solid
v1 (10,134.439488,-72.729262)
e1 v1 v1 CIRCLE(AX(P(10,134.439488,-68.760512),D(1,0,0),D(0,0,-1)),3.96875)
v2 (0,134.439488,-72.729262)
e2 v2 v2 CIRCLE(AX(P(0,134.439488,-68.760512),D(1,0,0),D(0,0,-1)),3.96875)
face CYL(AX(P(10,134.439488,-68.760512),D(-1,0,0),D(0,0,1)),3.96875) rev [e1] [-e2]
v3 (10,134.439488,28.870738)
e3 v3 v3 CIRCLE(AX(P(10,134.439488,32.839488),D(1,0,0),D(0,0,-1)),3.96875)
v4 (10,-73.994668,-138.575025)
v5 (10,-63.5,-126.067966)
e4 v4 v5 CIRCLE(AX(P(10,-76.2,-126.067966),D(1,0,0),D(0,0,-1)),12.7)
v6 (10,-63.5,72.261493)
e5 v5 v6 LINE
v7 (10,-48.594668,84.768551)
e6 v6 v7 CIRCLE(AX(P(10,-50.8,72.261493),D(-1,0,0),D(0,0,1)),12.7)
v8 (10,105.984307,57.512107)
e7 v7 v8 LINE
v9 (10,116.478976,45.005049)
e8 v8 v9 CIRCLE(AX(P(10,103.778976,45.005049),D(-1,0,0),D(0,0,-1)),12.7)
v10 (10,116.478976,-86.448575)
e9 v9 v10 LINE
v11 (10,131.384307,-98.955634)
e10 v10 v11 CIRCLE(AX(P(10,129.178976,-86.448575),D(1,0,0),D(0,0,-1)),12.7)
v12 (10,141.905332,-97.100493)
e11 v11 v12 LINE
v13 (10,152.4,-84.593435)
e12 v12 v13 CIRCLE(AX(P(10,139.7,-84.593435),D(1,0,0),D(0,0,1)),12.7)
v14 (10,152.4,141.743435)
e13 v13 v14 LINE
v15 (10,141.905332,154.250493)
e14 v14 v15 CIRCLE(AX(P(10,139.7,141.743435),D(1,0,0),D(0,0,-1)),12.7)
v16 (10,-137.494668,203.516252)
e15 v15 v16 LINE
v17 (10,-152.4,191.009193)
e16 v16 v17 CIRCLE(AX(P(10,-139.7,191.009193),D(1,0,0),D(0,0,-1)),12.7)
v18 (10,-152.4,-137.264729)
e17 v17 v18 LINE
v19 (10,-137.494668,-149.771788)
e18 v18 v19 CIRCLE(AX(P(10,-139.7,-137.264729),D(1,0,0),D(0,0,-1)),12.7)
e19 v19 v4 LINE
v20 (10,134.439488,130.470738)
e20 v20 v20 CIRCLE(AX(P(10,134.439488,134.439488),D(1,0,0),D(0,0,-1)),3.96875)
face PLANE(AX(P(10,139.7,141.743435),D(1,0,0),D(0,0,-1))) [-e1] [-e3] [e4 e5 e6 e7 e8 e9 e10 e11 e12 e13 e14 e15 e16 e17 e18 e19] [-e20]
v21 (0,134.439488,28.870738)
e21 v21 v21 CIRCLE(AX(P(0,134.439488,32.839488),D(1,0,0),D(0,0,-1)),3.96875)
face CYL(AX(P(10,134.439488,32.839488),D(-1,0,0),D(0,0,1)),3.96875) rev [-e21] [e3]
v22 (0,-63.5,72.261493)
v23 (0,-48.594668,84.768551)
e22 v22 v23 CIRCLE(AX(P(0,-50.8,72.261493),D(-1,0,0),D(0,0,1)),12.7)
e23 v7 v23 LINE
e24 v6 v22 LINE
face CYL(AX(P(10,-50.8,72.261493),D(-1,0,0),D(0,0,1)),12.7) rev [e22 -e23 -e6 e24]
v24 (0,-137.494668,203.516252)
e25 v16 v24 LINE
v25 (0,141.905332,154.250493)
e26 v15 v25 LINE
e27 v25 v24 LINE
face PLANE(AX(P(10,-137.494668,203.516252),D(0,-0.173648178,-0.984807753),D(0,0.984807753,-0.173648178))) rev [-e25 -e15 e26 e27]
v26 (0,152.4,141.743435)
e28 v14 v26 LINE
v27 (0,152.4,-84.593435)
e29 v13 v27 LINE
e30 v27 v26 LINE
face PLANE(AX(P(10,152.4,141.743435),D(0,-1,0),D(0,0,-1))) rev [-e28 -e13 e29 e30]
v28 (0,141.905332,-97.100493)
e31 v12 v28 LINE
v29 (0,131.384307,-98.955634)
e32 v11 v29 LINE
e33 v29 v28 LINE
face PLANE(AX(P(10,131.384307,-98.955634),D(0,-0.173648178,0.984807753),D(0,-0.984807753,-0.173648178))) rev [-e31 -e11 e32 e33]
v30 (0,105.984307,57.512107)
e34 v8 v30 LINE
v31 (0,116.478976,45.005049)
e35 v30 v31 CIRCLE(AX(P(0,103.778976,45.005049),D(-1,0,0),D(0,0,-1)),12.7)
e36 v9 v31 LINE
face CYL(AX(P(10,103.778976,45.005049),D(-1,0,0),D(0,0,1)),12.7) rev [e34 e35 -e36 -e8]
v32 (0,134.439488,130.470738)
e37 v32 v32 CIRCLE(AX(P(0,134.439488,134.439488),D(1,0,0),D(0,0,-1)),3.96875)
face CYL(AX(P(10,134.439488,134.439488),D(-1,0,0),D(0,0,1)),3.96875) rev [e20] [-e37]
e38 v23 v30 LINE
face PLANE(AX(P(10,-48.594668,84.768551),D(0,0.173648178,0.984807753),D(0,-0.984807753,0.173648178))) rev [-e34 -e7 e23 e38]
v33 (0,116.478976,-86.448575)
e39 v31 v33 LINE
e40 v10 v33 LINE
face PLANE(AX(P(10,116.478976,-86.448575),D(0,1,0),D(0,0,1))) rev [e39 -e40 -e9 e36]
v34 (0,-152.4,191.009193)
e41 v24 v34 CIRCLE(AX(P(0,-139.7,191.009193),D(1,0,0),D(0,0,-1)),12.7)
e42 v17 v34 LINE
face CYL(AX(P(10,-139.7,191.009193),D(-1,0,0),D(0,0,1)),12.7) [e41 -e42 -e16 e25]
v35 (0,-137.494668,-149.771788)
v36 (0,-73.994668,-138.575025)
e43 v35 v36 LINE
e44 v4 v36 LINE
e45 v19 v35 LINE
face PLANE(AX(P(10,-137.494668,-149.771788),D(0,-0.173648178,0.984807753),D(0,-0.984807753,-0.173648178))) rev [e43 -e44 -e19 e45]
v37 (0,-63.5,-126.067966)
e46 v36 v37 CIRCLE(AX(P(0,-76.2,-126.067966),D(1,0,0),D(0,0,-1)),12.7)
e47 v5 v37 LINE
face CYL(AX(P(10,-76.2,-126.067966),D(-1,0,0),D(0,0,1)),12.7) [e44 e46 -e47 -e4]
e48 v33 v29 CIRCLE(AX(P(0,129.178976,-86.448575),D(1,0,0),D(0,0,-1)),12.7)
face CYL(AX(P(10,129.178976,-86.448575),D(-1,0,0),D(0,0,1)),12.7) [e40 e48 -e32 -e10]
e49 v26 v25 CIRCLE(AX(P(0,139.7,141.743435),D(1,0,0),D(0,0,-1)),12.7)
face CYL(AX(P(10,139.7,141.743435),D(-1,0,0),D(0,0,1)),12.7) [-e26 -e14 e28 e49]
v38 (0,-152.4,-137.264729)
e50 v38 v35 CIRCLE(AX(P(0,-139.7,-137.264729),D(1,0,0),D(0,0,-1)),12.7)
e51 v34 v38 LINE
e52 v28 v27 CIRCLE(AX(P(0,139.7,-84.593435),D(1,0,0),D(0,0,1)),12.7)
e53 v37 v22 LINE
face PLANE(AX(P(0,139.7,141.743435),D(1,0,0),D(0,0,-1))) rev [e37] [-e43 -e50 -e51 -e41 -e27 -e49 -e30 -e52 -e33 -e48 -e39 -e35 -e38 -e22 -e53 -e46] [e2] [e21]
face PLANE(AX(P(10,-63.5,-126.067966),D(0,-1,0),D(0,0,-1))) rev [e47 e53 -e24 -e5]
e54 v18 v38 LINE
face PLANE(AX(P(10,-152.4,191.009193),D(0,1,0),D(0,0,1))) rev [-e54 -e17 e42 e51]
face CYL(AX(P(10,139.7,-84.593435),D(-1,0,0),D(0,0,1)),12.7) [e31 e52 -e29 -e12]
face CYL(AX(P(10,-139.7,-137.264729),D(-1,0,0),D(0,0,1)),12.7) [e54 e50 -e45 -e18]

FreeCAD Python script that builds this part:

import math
import FreeCAD as App
import Part
import Sketcher
Q = App.Units.Quantity

doc = App.newDocument("Part")
body = doc.addObject("PartDesign::Body", "Body")

sketch1 = doc.addObject("Sketcher::SketchObject", "Sketch")
body.addObject(sketch1)
sketch1.AttachmentSupport = (doc.YZ_Plane, [""])
sketch1.MapMode = "FlatFace"
sketch1.addGeometry(Part.LineSegment(App.Vector(131.384307, -98.955634, 0), App.Vector(141.905332, -97.100493, 0)), False)
sketch1.addGeometry(Part.ArcOfCircle(Part.Circle(App.Vector(139.7, -84.593435, 0), App.Vector(0, 0, 1), 12.7), math.radians(-80), math.radians(0)), False)
sketch1.addGeometry(Part.LineSegment(App.Vector(152.4, -84.593435, 0), App.Vector(152.4, 141.743435, 0)), False)
sketch1.addGeometry(Part.ArcOfCircle(Part.Circle(App.Vector(139.7, 141.743435, 0), App.Vector(0, 0, 1), 12.7), math.radians(0), math.radians(80)), False)
sketch1.addGeometry(Part.LineSegment(App.Vector(141.905332, 154.250493, 0), App.Vector(-137.494668, 203.516252, 0)), False)
sketch1.addGeometry(Part.ArcOfCircle(Part.Circle(App.Vector(-139.7, 191.009193, 0), App.Vector(0, 0, 1), 12.7), math.radians(80), math.radians(180)), False)
sketch1.addGeometry(Part.LineSegment(App.Vector(-152.4, 191.009193, 0), App.Vector(-152.4, -137.264729, 0)), False)
sketch1.addGeometry(Part.ArcOfCircle(Part.Circle(App.Vector(-139.7, -137.264729, 0), App.Vector(0, 0, 1), 12.7), math.radians(180), math.radians(280)), False)
sketch1.addGeometry(Part.LineSegment(App.Vector(-137.494668, -149.771788, 0), App.Vector(-73.994668, -138.575025, 0)), False)
sketch1.addGeometry(Part.ArcOfCircle(Part.Circle(App.Vector(-76.2, -126.067966, 0), App.Vector(0, 0, 1), 12.7), math.radians(-80), math.radians(0)), False)
sketch1.addGeometry(Part.LineSegment(App.Vector(-63.5, -126.067966, 0), App.Vector(-63.5, 72.261493, 0)), False)
sketch1.addGeometry(Part.ArcOfCircle(Part.Circle(App.Vector(-50.8, 72.261493, 0), App.Vector(0, 0, 1), 12.7), math.radians(80), math.radians(180)), False)
sketch1.addGeometry(Part.LineSegment(App.Vector(-48.594668, 84.768551, 0), App.Vector(105.984307, 57.512107, 0)), False)
sketch1.addGeometry(Part.ArcOfCircle(Part.Circle(App.Vector(103.778976, 45.005049, 0), App.Vector(0, 0, 1), 12.7), math.radians(0), math.radians(80)), False)
sketch1.addGeometry(Part.LineSegment(App.Vector(116.478976, 45.005049, 0), App.Vector(116.478976, -86.448575, 0)), False)
sketch1.addGeometry(Part.ArcOfCircle(Part.Circle(App.Vector(129.178976, -86.448575, 0), App.Vector(0, 0, 1), 12.7), math.radians(180), math.radians(280)), False)
sketch1.addGeometry(Part.Circle(App.Vector(134.439488, 134.439488, 0), App.Vector(0, 0, 1), 3.96875), False)
sketch1.addGeometry(Part.Circle(App.Vector(134.439488, 32.839488, 0), App.Vector(0, 0, 1), 3.96875), False)
sketch1.addGeometry(Part.Circle(App.Vector(134.439488, -68.760512, 0), App.Vector(0, 0, 1), 3.96875), False)
sketch1.addConstraint(Sketcher.Constraint("Tangent", 0, 2, 1, 1))
sketch1.addConstraint(Sketcher.Constraint("Tangent", 1, 2, 2, 1))
sketch1.addConstraint(Sketcher.Constraint("Tangent", 2, 2, 3, 1))
sketch1.addConstraint(Sketcher.Constraint("Tangent", 3, 2, 4, 1))
sketch1.addConstraint(Sketcher.Constraint("Tangent", 4, 2, 5, 1))
sketch1.addConstraint(Sketcher.Constraint("Tangent", 5, 2, 6, 1))
sketch1.addConstraint(Sketcher.Constraint("Tangent", 6, 2, 7, 1))
sketch1.addConstraint(Sketcher.Constraint("Tangent", 7, 2, 8, 1))
sketch1.addConstraint(Sketcher.Constraint("Tangent", 8, 2, 9, 1))
sketch1.addConstraint(Sketcher.Constraint("Tangent", 9, 2, 10, 1))
sketch1.addConstraint(Sketcher.Constraint("Tangent", 10, 2, 11, 2))
sketch1.addConstraint(Sketcher.Constraint("Tangent", 11, 1, 12, 1))
sketch1.addConstraint(Sketcher.Constraint("Tangent", 12, 2, 13, 2))
sketch1.addConstraint(Sketcher.Constraint("Tangent", 13, 1, 14, 1))
sketch1.addConstraint(Sketcher.Constraint("Tangent", 14, 2, 15, 1))
sketch1.addConstraint(Sketcher.Constraint("Tangent", 15, 2, 0, 1))
sketch1.addConstraint(Sketcher.Constraint("Vertical", 2))
sketch1.addConstraint(Sketcher.Constraint("Vertical", 6))
sketch1.addConstraint(Sketcher.Constraint("Vertical", 10))
sketch1.addConstraint(Sketcher.Constraint("Vertical", 14))
sketch1.addConstraint(Sketcher.Constraint("Equal", 1, 3))
sketch1.addConstraint(Sketcher.Constraint("Equal", 3, 5))
sketch1.addConstraint(Sketcher.Constraint("Equal", 5, 7))
sketch1.addConstraint(Sketcher.Constraint("Equal", 7, 9))
sketch1.addConstraint(Sketcher.Constraint("Equal", 9, 11))
sketch1.addConstraint(Sketcher.Constraint("Equal", 11, 13))
sketch1.addConstraint(Sketcher.Constraint("Equal", 13, 15))
sketch1.addConstraint(Sketcher.Constraint("Equal", 16, 17))
sketch1.addConstraint(Sketcher.Constraint("Equal", 17, 18))
sketch1.addConstraint(Sketcher.Constraint("Parallel", 0, 8))
sketch1.addConstraint(Sketcher.Constraint("Parallel", 4, 12))
sketch1.addConstraint(Sketcher.Constraint("Vertical", 16, 3, 17, 3))
sketch1.addConstraint(Sketcher.Constraint("Vertical", 17, 3, 18, 3))
sketch1.addConstraint(Sketcher.Constraint("Vertical", 0, 2, 3, 2))
sketch1.addConstraint(Sketcher.Constraint("Radius", 1, Q("0.5 in")))
sketch1.addConstraint(Sketcher.Constraint("Diameter", 16, Q("0.3125 in")))
sketch1.addConstraint(Sketcher.Constraint("DistanceX", 9, 3, -1, 1, Q("3 in")))
sketch1.addConstraint(Sketcher.Constraint("DistanceX", -1, 1, 1, 2, Q("6 in")))
sketch1.addConstraint(Sketcher.Constraint("DistanceX", 5, 2, -1, 1, Q("6 in")))
sketch1.addConstraint(Sketcher.Constraint("Angle", 0, Q("10 deg")))
sketch1.addConstraint(Sketcher.Constraint("DistanceY", 17, 3, 16, 3, Q("4 in")))
sketch1.addConstraint(Sketcher.Constraint("DistanceY", 18, 3, 17, 3, Q("4 in")))
sketch1.addConstraint(Sketcher.Constraint("DistanceY", 2, 1, 2, 2, Q("226.336869 mm")))
sketch1.addConstraint(Sketcher.Constraint("DistanceY", 10, 1, 10, 2, Q("198.329459 mm")))
sketch1.addConstraint(Sketcher.Constraint("DistanceY", 9, 3, 3, 3, Q("267.811401 mm")))
sketch1.addConstraint(Sketcher.Constraint("DistanceY", 15, 2, 1, 3, Q("14.362199 mm")))
sketch1.addConstraint(Sketcher.Constraint("DistanceY", 7, 3, -1, 1, Q("137.264729 mm")))
sketch1.addConstraint(Sketcher.Constraint("DistanceY", 13, 3, 16, 3, Q("89.434439 mm")))
sketch1.addConstraint(Sketcher.Constraint("DistanceX", 12, 2, 17, 3, Q("28.45518 mm")))
pad1 = doc.addObject("PartDesign::Pad", "Pad")
body.addObject(pad1)
pad1.Profile = sketch1
pad1.Length = 10

doc.recompute()
